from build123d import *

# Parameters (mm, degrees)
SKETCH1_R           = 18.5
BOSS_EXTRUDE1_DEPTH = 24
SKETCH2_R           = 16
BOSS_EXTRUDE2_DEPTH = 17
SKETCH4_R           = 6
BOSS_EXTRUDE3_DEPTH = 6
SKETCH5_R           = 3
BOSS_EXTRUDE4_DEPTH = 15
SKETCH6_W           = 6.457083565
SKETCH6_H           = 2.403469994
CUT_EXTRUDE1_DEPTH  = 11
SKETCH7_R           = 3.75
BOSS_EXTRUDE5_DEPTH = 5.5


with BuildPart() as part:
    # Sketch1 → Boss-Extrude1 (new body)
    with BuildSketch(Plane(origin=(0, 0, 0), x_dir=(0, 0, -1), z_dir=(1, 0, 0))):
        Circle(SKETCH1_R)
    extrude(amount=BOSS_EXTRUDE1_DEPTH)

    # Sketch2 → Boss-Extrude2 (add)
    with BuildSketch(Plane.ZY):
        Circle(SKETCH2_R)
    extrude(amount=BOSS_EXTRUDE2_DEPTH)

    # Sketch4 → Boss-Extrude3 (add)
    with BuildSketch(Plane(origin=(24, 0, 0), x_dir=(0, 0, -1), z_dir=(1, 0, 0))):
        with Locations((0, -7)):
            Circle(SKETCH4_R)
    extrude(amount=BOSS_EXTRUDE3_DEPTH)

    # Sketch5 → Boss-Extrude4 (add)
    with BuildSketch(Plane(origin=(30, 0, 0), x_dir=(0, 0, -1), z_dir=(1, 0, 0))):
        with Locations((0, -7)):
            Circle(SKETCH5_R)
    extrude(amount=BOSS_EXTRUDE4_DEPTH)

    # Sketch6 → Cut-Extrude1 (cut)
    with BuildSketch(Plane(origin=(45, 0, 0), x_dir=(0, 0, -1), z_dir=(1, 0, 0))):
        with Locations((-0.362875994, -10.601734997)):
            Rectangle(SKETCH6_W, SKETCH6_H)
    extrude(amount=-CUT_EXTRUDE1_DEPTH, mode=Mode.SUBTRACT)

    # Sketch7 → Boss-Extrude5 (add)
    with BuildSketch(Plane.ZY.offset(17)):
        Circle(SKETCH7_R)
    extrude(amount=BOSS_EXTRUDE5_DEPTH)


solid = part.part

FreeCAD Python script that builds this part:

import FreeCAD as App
import Part
import Sketcher


def add_polygon(sketch, points):
    """Adds a closed chain of lines whose ends are joined by coincident constraints."""
    first, n = sketch.GeometryCount, len(points)
    for a, b in zip(points, points[1:] + points[:1]):
        sketch.addGeometry(Part.LineSegment(App.Vector(*a, 0), App.Vector(*b, 0)), False)
    for i in range(n):
        sketch.addConstraint(Sketcher.Constraint("Coincident", first + i, 2, first + (i + 1) % n, 1))

doc = App.newDocument("Part")
params = doc.addObject("Spreadsheet::Sheet", "Params")
for row, (alias, value) in enumerate([
    ("sketch1_diameter", "37 mm"),
    ("pad1_length", "24 mm"),
    ("sketch2_diameter", "32 mm"),
    ("pad2_length", "17 mm"),
    ("sketch3_diameter", "12 mm"),
    ("pad3_length", "6 mm"),
    ("sketch4_diameter", "6 mm"),
    ("pad4_length", "15 mm"),
    ("pocket1_length", "11 mm"),
    ("sketch6_diameter", "7.5 mm"),
    ("pad5_length", "5.5 mm"),
], start=1):
    params.set(f"A{row}", alias)
    params.set(f"B{row}", "=" + value)
    params.setAlias(f"B{row}", alias)

body = doc.addObject("PartDesign::Body", "Body")

# Sketch on YZ plane
sketch1 = doc.addObject("Sketcher::SketchObject", "Sketch")
body.addObject(sketch1)
sketch1.AttachmentSupport = (doc.YZ_Plane, [""])
sketch1.MapMode = "FlatFace"
sketch1.addGeometry(Part.Circle(App.Vector(0, 0, 0), App.Vector(0, 0, 1), 18.5), False)
sketch1.addConstraint([
    Sketcher.Constraint("Coincident", 0, 3, -1, 1),
    Sketcher.Constraint("Diameter", 0, 37.0),
])
sketch1.setExpression("Constraints[1]", "Params.sketch1_diameter")
pad1 = doc.addObject("PartDesign::Pad", "Pad")
body.addObject(pad1)
pad1.Profile = sketch1
pad1.setExpression("Length", "Params.pad1_length")

# Sketch on YZ plane
sketch2 = doc.addObject("Sketcher::SketchObject", "Sketch001")
body.addObject(sketch2)
sketch2.AttachmentSupport = (doc.YZ_Plane, [""])
sketch2.MapMode = "FlatFace"
sketch2.addGeometry(Part.Circle(App.Vector(0, 0, 0), App.Vector(0, 0, 1), 16), False)
sketch2.addConstraint([
    Sketcher.Constraint("Coincident", 0, 3, -1, 1),
    Sketcher.Constraint("Diameter", 0, 32.0),
])
sketch2.setExpression("Constraints[1]", "Params.sketch2_diameter")
pad2 = doc.addObject("PartDesign::Pad", "Pad001")
body.addObject(pad2)
pad2.Profile = sketch2
pad2.setExpression("Length", "Params.pad2_length")
pad2.Reversed = True

# Sketch on YZ plane
sketch3 = doc.addObject("Sketcher::SketchObject", "Sketch002")
body.addObject(sketch3)
sketch3.AttachmentSupport = (doc.YZ_Plane, [""])
sketch3.MapMode = "FlatFace"
sketch3.AttachmentOffset = App.Placement(App.Vector(0, 0, 24), App.Rotation())
sketch3.addGeometry(Part.Circle(App.Vector(-7, 0, 0), App.Vector(0, 0, 1), 6), False)
sketch3.addConstraint([
    Sketcher.Constraint("PointOnObject", 0, 3, -1),
    Sketcher.Constraint("Diameter", 0, 12.0),
    Sketcher.Constraint("DistanceX", 0, 3, -1, 1, 7.0),
])
sketch3.setExpression("Constraints[1]", "Params.sketch3_diameter")
pad3 = doc.addObject("PartDesign::Pad", "Pad002")
body.addObject(pad3)
pad3.Profile = sketch3
pad3.setExpression("Length", "Params.pad3_length")

# Sketch on YZ plane
sketch4 = doc.addObject("Sketcher::SketchObject", "Sketch003")
body.addObject(sketch4)
sketch4.AttachmentSupport = (doc.YZ_Plane, [""])
sketch4.MapMode = "FlatFace"
sketch4.AttachmentOffset = App.Placement(App.Vector(0, 0, 30), App.Rotation())
sketch4.addGeometry(Part.Circle(App.Vector(-7, 0, 0), App.Vector(0, 0, 1), 3), False)
sketch4.addConstraint([
    Sketcher.Constraint("PointOnObject", 0, 3, -1),
    Sketcher.Constraint("Diameter", 0, 6.0),
    Sketcher.Constraint("DistanceX", 0, 3, -1, 1, 7.0),
])
sketch4.setExpression("Constraints[1]", "Params.sketch4_diameter")
pad4 = doc.addObject("PartDesign::Pad", "Pad003")
body.addObject(pad4)
pad4.Profile = sketch4
pad4.setExpression("Length", "Params.pad4_length")

# Sketch on YZ plane
sketch5 = doc.addObject("Sketcher::SketchObject", "Sketch004")
body.addObject(sketch5)
sketch5.AttachmentSupport = (doc.YZ_Plane, [""])
sketch5.MapMode = "FlatFace"
sketch5.AttachmentOffset = App.Placement(App.Vector(0, 0, 45), App.Rotation())
add_polygon(sketch5, [(-9.4, 3.591418), (-11.80347, 3.591418), (-11.80347, -2.865666), (-9.4, -2.865666)])  # lines 0-3
sketch5.addConstraint([
    Sketcher.Constraint("Horizontal", 0),
    Sketcher.Constraint("Vertical", 1),
    Sketcher.Constraint("Horizontal", 2),
    Sketcher.Constraint("Vertical", 3),
    Sketcher.Constraint("DistanceX", 2, 2, -1, 1, 9.4),
    Sketcher.Constraint("DistanceX", 0, 2, 0, 1, 2.40347),
    Sketcher.Constraint("DistanceY", 1, 2, 1, 1, 6.457084),
    Sketcher.Constraint("DistanceY", -1, 1, 0, 2, 3.591418),
])
pocket1 = doc.addObject("PartDesign::Pocket", "Pocket")
body.addObject(pocket1)
pocket1.Profile = sketch5
pocket1.setExpression("Length", "Params.pocket1_length")

# Sketch on YZ plane
sketch6 = doc.addObject("Sketcher::SketchObject", "Sketch005")
body.addObject(sketch6)
sketch6.AttachmentSupport = (doc.YZ_Plane, [""])
sketch6.MapMode = "FlatFace"
sketch6.AttachmentOffset = App.Placement(App.Vector(0, 0, -17), App.Rotation())
sketch6.addGeometry(Part.Circle(App.Vector(0, 0, 0), App.Vector(0, 0, 1), 3.75), False)
sketch6.addConstraint([
    Sketcher.Constraint("Coincident", 0, 3, -1, 1),
    Sketcher.Constraint("Diameter", 0, 7.5),
])
sketch6.setExpression("Constraints[1]", "Params.sketch6_diameter")
pad5 = doc.addObject("PartDesign::Pad", "Pad004")
body.addObject(pad5)
pad5.Profile = sketch6
pad5.setExpression("Length", "Params.pad5_length")
pad5.Reversed = True

doc.recompute()
